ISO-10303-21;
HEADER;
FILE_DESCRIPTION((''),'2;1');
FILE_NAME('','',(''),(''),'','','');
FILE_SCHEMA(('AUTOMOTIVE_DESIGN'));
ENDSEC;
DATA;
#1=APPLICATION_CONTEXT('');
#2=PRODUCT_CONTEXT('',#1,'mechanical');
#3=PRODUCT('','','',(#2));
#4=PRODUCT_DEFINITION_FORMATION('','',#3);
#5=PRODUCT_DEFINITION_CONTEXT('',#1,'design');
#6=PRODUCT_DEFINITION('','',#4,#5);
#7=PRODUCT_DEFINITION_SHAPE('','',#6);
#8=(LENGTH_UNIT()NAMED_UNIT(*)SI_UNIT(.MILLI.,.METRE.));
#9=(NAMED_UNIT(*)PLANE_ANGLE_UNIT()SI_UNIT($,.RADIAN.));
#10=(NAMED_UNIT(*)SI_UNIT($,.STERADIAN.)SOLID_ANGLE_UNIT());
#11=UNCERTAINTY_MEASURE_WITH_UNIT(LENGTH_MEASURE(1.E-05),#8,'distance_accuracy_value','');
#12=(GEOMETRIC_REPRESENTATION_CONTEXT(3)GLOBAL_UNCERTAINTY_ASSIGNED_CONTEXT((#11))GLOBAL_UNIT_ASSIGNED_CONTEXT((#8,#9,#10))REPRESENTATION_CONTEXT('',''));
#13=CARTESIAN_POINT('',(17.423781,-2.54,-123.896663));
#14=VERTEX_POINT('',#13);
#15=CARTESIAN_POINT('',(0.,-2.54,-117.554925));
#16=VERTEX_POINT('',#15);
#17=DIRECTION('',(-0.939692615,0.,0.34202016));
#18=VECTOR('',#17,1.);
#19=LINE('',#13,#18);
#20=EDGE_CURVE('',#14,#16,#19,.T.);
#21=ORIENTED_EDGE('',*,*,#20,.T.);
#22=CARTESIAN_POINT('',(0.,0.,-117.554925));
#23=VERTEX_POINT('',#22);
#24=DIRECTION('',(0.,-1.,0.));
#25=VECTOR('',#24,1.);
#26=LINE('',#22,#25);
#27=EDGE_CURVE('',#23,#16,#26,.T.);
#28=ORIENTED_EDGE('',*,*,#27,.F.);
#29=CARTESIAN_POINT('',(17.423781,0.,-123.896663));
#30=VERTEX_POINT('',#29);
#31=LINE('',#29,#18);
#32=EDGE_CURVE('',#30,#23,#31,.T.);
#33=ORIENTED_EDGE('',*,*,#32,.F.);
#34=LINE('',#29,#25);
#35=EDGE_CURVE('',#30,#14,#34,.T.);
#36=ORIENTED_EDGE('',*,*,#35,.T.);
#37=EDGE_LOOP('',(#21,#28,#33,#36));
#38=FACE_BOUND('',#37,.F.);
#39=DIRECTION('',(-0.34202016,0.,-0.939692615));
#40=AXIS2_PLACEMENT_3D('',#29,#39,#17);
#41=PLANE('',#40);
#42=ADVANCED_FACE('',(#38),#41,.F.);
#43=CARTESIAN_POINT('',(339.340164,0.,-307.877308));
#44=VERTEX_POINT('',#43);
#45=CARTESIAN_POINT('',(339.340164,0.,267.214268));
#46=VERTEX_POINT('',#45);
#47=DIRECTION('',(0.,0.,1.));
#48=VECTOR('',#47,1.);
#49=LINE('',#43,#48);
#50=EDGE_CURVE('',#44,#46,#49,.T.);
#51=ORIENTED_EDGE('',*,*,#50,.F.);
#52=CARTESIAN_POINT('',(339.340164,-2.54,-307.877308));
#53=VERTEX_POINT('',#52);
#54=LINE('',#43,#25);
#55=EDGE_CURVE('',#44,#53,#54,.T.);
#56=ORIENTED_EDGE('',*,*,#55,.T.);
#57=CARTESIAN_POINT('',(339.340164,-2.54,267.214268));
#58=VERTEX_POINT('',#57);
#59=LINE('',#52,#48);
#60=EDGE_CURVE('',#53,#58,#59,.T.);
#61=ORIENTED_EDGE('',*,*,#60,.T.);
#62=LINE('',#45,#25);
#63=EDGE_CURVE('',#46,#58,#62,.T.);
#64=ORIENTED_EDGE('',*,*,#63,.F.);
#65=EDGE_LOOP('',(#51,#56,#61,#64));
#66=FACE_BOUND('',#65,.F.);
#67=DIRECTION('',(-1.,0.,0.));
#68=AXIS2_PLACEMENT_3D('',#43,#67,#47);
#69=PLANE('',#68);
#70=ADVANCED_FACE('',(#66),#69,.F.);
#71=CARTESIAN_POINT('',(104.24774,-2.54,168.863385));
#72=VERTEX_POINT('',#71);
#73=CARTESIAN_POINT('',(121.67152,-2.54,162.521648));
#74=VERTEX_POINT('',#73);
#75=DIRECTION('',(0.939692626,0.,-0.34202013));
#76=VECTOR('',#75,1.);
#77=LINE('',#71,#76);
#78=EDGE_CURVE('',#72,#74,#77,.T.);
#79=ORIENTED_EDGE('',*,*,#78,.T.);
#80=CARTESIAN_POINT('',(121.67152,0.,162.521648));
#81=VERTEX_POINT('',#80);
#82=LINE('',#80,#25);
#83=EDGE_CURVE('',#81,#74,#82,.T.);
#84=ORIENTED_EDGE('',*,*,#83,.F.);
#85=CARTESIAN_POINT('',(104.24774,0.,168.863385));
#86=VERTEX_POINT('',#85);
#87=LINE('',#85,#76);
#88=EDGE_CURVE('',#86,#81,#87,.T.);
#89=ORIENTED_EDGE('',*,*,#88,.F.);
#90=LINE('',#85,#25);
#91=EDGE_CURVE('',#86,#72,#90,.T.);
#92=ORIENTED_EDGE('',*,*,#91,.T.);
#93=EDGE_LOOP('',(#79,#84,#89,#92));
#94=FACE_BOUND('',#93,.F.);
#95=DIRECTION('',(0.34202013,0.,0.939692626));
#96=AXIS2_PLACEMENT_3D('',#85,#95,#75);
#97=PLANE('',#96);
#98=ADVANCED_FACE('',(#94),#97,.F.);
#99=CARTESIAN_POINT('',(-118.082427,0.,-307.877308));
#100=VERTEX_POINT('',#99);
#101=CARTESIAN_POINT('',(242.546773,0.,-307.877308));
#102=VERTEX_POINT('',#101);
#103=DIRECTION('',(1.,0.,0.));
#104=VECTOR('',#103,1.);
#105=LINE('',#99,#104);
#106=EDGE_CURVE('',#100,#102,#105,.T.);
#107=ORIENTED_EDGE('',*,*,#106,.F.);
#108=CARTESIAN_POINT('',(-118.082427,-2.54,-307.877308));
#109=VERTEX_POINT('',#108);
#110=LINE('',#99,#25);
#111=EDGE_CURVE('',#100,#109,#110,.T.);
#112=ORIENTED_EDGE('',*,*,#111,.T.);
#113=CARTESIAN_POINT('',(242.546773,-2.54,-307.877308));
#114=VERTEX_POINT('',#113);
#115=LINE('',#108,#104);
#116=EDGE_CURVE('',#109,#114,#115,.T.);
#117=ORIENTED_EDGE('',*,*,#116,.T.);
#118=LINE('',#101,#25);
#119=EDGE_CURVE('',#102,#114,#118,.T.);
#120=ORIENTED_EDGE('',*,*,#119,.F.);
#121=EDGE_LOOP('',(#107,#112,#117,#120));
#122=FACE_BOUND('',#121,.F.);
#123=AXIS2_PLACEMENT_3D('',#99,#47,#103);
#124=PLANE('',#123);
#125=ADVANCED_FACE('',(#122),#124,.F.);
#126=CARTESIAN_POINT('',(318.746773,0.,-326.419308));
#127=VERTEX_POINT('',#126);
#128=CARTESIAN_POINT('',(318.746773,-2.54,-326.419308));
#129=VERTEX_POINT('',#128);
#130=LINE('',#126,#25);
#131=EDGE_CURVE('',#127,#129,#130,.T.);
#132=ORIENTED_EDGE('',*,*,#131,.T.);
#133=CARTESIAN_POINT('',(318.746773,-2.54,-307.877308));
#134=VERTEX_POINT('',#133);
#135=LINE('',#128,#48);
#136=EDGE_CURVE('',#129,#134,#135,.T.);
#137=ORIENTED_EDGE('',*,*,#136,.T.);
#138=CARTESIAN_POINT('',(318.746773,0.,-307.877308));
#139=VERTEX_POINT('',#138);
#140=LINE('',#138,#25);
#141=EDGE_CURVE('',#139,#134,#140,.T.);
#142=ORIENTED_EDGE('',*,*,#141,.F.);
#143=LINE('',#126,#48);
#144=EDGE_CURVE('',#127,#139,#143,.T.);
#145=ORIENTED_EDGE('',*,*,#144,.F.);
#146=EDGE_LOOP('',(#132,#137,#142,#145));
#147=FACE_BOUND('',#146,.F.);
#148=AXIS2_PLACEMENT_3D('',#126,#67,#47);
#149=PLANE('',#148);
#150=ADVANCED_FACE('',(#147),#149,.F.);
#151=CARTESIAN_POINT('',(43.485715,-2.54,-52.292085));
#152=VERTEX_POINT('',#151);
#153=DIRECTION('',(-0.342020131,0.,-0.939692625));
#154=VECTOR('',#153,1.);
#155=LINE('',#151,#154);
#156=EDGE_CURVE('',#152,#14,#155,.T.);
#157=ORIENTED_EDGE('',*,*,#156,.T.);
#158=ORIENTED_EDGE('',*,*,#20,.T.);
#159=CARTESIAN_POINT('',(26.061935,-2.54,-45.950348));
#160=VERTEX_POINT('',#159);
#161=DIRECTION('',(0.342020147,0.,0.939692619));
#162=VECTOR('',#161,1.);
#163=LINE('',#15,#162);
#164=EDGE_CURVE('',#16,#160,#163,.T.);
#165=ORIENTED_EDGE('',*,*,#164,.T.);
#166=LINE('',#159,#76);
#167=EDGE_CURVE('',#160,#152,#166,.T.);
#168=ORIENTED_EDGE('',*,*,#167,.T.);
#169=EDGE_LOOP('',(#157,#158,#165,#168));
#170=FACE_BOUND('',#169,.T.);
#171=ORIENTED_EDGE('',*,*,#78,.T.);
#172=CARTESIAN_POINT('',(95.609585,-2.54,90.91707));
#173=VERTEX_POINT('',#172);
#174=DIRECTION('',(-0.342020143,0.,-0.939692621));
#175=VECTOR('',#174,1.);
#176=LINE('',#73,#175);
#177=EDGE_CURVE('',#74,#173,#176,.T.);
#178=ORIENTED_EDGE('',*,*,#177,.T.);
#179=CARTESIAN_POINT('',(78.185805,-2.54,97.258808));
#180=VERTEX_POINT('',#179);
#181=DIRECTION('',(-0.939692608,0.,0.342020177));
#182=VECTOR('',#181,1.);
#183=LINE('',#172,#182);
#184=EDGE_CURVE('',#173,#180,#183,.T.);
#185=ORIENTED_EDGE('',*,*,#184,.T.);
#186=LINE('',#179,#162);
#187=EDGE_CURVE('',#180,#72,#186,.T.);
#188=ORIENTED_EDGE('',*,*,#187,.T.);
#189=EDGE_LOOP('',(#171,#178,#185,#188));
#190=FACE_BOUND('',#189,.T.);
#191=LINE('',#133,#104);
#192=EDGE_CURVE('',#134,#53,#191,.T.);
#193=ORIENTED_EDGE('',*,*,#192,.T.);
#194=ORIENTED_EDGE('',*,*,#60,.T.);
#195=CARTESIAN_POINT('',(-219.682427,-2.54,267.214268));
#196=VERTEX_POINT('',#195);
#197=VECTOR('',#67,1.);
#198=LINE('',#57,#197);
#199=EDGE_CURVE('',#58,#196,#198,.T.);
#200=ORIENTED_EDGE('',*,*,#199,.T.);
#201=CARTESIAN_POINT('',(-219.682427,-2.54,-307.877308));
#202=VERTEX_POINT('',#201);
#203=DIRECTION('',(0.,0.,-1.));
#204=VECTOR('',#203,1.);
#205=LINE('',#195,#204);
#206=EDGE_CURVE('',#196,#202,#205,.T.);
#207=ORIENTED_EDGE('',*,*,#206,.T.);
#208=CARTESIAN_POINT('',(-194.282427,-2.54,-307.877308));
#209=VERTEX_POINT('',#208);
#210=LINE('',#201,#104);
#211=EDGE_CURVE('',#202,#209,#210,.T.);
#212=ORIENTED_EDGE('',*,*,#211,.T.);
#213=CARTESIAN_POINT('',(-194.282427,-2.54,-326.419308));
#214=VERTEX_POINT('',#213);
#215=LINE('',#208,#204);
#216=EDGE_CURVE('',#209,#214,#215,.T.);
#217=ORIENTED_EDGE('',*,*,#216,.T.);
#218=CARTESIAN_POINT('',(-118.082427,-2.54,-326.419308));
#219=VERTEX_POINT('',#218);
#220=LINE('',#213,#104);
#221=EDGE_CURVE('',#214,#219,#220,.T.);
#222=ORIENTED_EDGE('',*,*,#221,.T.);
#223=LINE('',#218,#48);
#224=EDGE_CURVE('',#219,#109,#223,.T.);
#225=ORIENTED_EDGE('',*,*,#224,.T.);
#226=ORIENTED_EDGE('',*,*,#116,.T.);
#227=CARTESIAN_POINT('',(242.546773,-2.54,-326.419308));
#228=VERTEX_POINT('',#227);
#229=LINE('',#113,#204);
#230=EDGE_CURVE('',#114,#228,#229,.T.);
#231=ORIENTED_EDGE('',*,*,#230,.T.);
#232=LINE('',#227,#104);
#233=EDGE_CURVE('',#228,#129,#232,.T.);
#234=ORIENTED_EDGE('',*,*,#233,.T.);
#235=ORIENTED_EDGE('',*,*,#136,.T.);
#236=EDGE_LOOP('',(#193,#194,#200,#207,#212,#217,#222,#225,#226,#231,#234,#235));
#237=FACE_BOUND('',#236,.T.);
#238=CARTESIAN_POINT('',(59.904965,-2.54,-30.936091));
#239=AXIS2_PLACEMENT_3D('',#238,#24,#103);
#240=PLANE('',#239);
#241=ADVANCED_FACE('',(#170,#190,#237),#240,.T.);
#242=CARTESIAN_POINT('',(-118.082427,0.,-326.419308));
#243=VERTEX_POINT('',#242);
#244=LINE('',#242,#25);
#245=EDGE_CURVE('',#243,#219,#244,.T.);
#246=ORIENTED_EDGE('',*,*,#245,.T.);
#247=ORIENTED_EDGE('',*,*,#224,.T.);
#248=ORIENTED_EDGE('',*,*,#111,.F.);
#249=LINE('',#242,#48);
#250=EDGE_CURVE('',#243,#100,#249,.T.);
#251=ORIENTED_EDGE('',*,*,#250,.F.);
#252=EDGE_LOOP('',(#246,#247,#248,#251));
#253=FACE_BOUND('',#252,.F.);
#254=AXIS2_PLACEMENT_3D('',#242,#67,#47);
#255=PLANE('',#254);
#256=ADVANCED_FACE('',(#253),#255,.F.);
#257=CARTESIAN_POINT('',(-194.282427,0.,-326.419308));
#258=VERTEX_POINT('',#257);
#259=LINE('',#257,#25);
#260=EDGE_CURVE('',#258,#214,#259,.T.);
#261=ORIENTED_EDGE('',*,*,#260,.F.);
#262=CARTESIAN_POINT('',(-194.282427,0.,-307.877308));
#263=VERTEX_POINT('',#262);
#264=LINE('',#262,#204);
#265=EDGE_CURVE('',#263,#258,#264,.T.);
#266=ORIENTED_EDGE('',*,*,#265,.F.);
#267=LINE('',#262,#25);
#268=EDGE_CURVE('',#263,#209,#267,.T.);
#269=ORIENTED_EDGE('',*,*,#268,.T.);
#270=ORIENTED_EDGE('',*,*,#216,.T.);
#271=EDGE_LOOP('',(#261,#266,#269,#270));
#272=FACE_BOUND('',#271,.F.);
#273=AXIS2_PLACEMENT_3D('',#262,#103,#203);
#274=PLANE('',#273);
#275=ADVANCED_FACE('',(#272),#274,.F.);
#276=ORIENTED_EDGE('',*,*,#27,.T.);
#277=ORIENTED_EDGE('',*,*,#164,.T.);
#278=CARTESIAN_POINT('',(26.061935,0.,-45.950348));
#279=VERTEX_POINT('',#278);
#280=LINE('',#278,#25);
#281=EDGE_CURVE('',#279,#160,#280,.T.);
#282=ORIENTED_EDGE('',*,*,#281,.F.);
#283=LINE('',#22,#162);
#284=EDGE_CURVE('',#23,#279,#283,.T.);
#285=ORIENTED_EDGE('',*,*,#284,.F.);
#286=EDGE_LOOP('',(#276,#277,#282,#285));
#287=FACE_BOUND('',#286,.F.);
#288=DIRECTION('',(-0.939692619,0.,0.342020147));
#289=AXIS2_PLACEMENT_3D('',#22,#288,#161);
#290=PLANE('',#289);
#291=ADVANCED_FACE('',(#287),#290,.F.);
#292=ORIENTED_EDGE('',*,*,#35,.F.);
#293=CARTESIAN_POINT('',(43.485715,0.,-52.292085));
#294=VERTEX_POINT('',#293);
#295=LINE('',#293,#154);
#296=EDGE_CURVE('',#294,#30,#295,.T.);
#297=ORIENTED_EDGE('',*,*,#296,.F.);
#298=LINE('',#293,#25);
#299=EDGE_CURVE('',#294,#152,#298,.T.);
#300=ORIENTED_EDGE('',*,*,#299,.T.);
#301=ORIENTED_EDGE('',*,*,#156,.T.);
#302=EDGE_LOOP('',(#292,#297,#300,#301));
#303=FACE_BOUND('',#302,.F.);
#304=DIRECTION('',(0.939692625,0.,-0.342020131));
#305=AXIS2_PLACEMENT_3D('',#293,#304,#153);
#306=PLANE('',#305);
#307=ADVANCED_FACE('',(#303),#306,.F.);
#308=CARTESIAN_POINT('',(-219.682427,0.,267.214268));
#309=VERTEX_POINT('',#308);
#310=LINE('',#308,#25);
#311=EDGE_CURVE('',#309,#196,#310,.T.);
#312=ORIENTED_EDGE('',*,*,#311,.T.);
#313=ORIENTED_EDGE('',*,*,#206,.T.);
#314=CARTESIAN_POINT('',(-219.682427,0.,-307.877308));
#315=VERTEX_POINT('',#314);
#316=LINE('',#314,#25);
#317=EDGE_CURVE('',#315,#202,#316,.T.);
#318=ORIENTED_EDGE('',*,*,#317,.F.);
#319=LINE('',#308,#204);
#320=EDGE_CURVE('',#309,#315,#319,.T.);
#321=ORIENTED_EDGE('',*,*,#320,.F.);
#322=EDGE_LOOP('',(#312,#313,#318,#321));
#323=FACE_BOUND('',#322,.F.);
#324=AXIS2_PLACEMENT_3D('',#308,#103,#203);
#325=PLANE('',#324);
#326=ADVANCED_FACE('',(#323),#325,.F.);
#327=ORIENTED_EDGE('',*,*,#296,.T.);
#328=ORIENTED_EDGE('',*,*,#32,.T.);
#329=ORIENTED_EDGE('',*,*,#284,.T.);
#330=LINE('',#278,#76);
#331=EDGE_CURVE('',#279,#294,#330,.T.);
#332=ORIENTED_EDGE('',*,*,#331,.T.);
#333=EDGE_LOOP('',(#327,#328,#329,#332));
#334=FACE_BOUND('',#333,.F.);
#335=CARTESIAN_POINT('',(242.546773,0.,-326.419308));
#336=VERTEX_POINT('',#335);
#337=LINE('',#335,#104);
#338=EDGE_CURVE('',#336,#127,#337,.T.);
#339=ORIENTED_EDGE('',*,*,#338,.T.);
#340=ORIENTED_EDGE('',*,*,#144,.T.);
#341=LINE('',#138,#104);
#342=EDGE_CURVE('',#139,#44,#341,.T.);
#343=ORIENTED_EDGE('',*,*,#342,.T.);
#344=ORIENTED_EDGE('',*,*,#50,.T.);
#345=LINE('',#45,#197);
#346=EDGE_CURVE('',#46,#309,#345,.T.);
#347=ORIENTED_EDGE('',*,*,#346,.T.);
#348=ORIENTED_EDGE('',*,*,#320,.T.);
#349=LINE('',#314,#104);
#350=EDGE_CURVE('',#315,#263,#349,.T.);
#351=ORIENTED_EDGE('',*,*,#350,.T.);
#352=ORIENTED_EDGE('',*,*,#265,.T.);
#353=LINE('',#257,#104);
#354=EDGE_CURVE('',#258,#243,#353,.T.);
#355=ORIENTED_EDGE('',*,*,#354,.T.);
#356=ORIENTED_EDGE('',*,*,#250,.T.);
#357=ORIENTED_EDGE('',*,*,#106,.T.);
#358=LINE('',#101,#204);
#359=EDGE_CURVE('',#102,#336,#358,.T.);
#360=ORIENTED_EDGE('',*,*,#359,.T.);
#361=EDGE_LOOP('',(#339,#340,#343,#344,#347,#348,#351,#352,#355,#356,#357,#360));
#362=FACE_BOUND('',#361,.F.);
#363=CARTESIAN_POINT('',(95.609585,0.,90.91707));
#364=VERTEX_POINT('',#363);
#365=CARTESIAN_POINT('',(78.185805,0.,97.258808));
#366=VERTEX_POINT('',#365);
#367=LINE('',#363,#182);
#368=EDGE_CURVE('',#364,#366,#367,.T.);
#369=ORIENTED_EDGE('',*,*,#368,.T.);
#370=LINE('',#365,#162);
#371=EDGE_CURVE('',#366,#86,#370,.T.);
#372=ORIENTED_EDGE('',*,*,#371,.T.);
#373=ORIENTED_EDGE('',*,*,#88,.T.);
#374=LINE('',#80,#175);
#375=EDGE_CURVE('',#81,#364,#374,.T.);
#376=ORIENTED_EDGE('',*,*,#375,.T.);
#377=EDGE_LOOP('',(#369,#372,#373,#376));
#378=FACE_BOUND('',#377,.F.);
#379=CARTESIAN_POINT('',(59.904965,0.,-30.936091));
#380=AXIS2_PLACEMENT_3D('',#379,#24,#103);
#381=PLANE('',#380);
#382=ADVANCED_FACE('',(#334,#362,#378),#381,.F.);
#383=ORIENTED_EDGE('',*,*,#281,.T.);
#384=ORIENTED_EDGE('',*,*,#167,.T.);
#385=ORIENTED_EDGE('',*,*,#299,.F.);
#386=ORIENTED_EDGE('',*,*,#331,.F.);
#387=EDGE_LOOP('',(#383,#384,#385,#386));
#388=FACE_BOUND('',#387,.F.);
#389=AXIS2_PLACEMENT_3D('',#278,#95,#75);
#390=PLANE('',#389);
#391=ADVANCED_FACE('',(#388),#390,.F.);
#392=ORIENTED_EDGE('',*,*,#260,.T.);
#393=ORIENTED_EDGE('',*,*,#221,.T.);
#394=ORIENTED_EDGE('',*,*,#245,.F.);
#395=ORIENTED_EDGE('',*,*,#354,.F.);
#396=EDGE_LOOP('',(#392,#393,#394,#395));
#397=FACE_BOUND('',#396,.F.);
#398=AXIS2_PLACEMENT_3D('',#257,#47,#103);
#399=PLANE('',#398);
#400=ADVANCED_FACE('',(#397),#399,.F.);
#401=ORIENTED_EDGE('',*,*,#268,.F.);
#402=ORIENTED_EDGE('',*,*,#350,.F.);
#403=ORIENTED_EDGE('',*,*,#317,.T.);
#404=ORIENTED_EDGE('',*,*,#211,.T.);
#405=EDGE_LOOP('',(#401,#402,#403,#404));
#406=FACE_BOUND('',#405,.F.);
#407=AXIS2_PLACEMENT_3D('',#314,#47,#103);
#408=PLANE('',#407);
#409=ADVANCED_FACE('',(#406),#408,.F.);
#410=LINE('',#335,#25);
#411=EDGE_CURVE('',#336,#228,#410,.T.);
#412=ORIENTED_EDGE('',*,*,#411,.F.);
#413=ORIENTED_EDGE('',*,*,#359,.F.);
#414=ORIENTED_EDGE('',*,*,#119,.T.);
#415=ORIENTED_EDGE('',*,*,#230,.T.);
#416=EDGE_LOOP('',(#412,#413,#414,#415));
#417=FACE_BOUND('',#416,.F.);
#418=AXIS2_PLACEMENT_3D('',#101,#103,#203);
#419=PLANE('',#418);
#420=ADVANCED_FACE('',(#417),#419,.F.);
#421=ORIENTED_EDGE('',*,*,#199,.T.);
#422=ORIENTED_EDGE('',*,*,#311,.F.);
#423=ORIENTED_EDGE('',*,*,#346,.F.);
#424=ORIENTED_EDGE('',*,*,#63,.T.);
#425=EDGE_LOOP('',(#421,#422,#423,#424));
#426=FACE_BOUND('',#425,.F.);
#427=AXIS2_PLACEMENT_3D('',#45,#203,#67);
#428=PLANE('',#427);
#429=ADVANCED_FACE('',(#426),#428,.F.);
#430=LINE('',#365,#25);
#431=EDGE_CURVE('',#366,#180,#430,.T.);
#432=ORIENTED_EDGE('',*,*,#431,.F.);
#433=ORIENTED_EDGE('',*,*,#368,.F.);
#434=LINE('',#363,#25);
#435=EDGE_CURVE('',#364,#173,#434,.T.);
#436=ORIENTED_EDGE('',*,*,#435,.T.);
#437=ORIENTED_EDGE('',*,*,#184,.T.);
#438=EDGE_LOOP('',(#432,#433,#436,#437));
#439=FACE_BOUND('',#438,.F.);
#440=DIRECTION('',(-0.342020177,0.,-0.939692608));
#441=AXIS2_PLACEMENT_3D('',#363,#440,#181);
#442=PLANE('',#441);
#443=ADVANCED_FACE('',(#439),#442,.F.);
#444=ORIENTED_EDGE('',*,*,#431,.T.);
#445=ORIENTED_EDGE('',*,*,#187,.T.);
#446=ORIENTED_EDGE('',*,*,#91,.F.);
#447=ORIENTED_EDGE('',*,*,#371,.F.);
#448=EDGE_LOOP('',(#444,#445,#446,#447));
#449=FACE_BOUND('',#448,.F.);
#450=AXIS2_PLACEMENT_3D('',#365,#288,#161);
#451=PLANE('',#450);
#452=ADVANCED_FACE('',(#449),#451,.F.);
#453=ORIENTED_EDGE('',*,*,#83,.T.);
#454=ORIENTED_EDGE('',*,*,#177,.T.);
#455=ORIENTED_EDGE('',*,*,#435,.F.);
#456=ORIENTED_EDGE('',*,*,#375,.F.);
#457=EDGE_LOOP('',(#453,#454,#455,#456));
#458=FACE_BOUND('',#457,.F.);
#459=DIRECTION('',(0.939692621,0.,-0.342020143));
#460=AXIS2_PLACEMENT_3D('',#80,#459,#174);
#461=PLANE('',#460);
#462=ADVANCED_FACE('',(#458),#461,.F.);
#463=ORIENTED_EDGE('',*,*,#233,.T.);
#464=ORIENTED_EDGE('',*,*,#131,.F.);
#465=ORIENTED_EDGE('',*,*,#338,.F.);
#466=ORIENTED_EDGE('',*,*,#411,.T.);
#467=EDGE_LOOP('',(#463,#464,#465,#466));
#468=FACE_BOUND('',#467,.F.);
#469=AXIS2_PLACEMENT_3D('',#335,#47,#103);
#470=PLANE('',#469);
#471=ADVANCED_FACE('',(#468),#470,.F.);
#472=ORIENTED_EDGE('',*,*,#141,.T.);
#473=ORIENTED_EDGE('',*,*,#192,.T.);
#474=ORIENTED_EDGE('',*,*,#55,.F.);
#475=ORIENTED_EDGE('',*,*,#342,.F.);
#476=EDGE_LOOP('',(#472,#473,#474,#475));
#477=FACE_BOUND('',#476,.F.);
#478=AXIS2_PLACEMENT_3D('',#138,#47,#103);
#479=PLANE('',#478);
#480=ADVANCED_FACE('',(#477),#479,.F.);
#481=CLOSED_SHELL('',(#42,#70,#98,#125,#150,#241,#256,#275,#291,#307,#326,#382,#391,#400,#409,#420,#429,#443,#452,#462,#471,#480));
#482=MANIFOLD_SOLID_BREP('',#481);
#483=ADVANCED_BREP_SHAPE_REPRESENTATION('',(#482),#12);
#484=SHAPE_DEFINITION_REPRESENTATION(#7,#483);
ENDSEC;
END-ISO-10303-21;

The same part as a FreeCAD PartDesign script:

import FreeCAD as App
import Part
import Sketcher

V = App.Vector
Q = App.Units.Quantity

doc = App.newDocument("Part")
body = doc.addObject("PartDesign::Body", "Body")

# Sketch on XZ plane
sketch1 = doc.addObject("Sketcher::SketchObject", "Sketch")
body.addObject(sketch1)
sketch1.AttachmentSupport = (doc.XZ_Plane, [""])
sketch1.MapMode = "FlatFace"
sketch1.addGeometry([
    Part.LineSegment(V(-220, 267, 0), V(-220, -308, 0)),  # 0
    Part.LineSegment(V(-220, -308, 0), V(-194, -308, 0)),  # 1
    Part.LineSegment(V(-194, -308, 0), V(-194, -326, 0)),  # 2
    Part.LineSegment(V(-194, -326, 0), V(-118, -326, 0)),  # 3
    Part.LineSegment(V(-118, -326, 0), V(-118, -308, 0)),  # 4
    Part.LineSegment(V(-118, -308, 0), V(243, -308, 0)),  # 5
    Part.LineSegment(V(243, -308, 0), V(243, -326, 0)),  # 6
    Part.LineSegment(V(243, -326, 0), V(319, -326, 0)),  # 7
    Part.LineSegment(V(319, -326, 0), V(319, -308, 0)),  # 8
    Part.LineSegment(V(319, -308, 0), V(339, -308, 0)),  # 9
    Part.LineSegment(V(339, -308, 0), V(339, 267, 0)),  # 10
    Part.LineSegment(V(339, 267, 0), V(-220, 267, 0)),  # 11
    Part.LineSegment(V(17, -124, 0), V(0, -118, 0)),  # 12
    Part.LineSegment(V(0, -118, 0), V(26, -46, 0)),  # 13
    Part.LineSegment(V(26, -46, 0), V(43, -52, 0)),  # 14
    Part.LineSegment(V(43, -52, 0), V(17, -124, 0)),  # 15
    Part.LineSegment(V(122, 163, 0), V(96, 91, 0)),  # 16
    Part.LineSegment(V(96, 91, 0), V(78, 97, 0)),  # 17
    Part.LineSegment(V(78, 97, 0), V(104, 169, 0)),  # 18
    Part.LineSegment(V(104, 169, 0), V(122, 163, 0)),  # 19
], False)
sketch1.addConstraint([
    Sketcher.Constraint("Coincident", 0, 2, 1, 1),
    Sketcher.Constraint("Coincident", 1, 2, 2, 1),
    Sketcher.Constraint("Coincident", 2, 2, 3, 1),
    Sketcher.Constraint("Coincident", 3, 2, 4, 1),
    Sketcher.Constraint("Coincident", 4, 2, 5, 1),
    Sketcher.Constraint("Coincident", 5, 2, 6, 1),
    Sketcher.Constraint("Coincident", 6, 2, 7, 1),
    Sketcher.Constraint("Coincident", 7, 2, 8, 1),
    Sketcher.Constraint("Coincident", 8, 2, 9, 1),
    Sketcher.Constraint("Coincident", 9, 2, 10, 1),
    Sketcher.Constraint("Coincident", 10, 2, 11, 1),
    Sketcher.Constraint("Coincident", 11, 2, 0, 1),
    Sketcher.Constraint("Coincident", 12, 2, 13, 1),
    Sketcher.Constraint("Coincident", 13, 2, 14, 1),
    Sketcher.Constraint("Coincident", 14, 2, 15, 1),
    Sketcher.Constraint("Coincident", 15, 2, 12, 1),
    Sketcher.Constraint("Coincident", 16, 2, 17, 1),
    Sketcher.Constraint("Coincident", 17, 2, 18, 1),
    Sketcher.Constraint("Coincident", 18, 2, 19, 1),
    Sketcher.Constraint("Coincident", 19, 2, 16, 1),
    Sketcher.Constraint("Vertical", 0),
    Sketcher.Constraint("Horizontal", 1),
    Sketcher.Constraint("Vertical", 2),
    Sketcher.Constraint("Horizontal", 3),
    Sketcher.Constraint("Vertical", 4),
    Sketcher.Constraint("Horizontal", 5),
    Sketcher.Constraint("Vertical", 6),
    Sketcher.Constraint("Horizontal", 7),
    Sketcher.Constraint("Vertical", 8),
    Sketcher.Constraint("Horizontal", 9),
    Sketcher.Constraint("Vertical", 10),
    Sketcher.Constraint("Horizontal", 11),
    Sketcher.Constraint("PointOnObject", 12, 2, -2),
    Sketcher.Constraint("Perpendicular", 12, 13),
    Sketcher.Constraint("Perpendicular", 13, 14),
    Sketcher.Constraint("Perpendicular", 14, 15),
    Sketcher.Constraint("Parallel", 15, 16),
    Sketcher.Constraint("Perpendicular", 16, 17),
    Sketcher.Constraint("Perpendicular", 17, 18),
    Sketcher.Constraint("Perpendicular", 18, 19),
    Sketcher.Constraint("Horizontal", 1, 2, 4, 2),
    Sketcher.Constraint("Horizontal", 3, 2, 6, 2),
    Sketcher.Constraint("Horizontal", 5, 2, 8, 2),
    Sketcher.Constraint("Equal", 3, 7),
    Sketcher.Constraint("Equal", 15, 16),
    Sketcher.Constraint("Equal", 14, 17),
    Sketcher.Constraint("DistanceX", 1, 1, 1, 2, Q("1 in")),
    Sketcher.Constraint("DistanceX", 3, 1, 3, 2, Q("3 in")),
    Sketcher.Constraint("Distance", 13, Q("3 in")),
    Sketcher.Constraint("Angle", 12, Q("159.999999 deg")),
    Sketcher.Constraint("DistanceY", 2, 2, 2, 1, Q("0.73 in")),
    Sketcher.Constraint("Distance", 12, Q("0.73 in")),
    Sketcher.Constraint("DistanceX", 5, 1, 5, 2, Q("14.198 in")),
    Sketcher.Constraint("DistanceX", 9, 1, 9, 2, 20.593391),
    Sketcher.Constraint("DistanceY", 16, 2, 10, 2, 176.297198),
    Sketcher.Constraint("DistanceY", 0, 2, 0, 1, 575.091576),
    Sketcher.Constraint("DistanceY", 0, 2, -1, 1, 307.877308),
    Sketcher.Constraint("DistanceX", -1, 1, 18, 2, 104.24774),
    Sketcher.Constraint("DistanceX", 4, 2, 13, 2, 144.144362),
    Sketcher.Constraint("DistanceY", 4, 2, 13, 2, 261.92696),
])
pad1 = doc.addObject("PartDesign::Pad", "Pad")
body.addObject(pad1)
pad1.Profile = sketch1
pad1.Length = Q("0.1 in")

doc.recompute()
